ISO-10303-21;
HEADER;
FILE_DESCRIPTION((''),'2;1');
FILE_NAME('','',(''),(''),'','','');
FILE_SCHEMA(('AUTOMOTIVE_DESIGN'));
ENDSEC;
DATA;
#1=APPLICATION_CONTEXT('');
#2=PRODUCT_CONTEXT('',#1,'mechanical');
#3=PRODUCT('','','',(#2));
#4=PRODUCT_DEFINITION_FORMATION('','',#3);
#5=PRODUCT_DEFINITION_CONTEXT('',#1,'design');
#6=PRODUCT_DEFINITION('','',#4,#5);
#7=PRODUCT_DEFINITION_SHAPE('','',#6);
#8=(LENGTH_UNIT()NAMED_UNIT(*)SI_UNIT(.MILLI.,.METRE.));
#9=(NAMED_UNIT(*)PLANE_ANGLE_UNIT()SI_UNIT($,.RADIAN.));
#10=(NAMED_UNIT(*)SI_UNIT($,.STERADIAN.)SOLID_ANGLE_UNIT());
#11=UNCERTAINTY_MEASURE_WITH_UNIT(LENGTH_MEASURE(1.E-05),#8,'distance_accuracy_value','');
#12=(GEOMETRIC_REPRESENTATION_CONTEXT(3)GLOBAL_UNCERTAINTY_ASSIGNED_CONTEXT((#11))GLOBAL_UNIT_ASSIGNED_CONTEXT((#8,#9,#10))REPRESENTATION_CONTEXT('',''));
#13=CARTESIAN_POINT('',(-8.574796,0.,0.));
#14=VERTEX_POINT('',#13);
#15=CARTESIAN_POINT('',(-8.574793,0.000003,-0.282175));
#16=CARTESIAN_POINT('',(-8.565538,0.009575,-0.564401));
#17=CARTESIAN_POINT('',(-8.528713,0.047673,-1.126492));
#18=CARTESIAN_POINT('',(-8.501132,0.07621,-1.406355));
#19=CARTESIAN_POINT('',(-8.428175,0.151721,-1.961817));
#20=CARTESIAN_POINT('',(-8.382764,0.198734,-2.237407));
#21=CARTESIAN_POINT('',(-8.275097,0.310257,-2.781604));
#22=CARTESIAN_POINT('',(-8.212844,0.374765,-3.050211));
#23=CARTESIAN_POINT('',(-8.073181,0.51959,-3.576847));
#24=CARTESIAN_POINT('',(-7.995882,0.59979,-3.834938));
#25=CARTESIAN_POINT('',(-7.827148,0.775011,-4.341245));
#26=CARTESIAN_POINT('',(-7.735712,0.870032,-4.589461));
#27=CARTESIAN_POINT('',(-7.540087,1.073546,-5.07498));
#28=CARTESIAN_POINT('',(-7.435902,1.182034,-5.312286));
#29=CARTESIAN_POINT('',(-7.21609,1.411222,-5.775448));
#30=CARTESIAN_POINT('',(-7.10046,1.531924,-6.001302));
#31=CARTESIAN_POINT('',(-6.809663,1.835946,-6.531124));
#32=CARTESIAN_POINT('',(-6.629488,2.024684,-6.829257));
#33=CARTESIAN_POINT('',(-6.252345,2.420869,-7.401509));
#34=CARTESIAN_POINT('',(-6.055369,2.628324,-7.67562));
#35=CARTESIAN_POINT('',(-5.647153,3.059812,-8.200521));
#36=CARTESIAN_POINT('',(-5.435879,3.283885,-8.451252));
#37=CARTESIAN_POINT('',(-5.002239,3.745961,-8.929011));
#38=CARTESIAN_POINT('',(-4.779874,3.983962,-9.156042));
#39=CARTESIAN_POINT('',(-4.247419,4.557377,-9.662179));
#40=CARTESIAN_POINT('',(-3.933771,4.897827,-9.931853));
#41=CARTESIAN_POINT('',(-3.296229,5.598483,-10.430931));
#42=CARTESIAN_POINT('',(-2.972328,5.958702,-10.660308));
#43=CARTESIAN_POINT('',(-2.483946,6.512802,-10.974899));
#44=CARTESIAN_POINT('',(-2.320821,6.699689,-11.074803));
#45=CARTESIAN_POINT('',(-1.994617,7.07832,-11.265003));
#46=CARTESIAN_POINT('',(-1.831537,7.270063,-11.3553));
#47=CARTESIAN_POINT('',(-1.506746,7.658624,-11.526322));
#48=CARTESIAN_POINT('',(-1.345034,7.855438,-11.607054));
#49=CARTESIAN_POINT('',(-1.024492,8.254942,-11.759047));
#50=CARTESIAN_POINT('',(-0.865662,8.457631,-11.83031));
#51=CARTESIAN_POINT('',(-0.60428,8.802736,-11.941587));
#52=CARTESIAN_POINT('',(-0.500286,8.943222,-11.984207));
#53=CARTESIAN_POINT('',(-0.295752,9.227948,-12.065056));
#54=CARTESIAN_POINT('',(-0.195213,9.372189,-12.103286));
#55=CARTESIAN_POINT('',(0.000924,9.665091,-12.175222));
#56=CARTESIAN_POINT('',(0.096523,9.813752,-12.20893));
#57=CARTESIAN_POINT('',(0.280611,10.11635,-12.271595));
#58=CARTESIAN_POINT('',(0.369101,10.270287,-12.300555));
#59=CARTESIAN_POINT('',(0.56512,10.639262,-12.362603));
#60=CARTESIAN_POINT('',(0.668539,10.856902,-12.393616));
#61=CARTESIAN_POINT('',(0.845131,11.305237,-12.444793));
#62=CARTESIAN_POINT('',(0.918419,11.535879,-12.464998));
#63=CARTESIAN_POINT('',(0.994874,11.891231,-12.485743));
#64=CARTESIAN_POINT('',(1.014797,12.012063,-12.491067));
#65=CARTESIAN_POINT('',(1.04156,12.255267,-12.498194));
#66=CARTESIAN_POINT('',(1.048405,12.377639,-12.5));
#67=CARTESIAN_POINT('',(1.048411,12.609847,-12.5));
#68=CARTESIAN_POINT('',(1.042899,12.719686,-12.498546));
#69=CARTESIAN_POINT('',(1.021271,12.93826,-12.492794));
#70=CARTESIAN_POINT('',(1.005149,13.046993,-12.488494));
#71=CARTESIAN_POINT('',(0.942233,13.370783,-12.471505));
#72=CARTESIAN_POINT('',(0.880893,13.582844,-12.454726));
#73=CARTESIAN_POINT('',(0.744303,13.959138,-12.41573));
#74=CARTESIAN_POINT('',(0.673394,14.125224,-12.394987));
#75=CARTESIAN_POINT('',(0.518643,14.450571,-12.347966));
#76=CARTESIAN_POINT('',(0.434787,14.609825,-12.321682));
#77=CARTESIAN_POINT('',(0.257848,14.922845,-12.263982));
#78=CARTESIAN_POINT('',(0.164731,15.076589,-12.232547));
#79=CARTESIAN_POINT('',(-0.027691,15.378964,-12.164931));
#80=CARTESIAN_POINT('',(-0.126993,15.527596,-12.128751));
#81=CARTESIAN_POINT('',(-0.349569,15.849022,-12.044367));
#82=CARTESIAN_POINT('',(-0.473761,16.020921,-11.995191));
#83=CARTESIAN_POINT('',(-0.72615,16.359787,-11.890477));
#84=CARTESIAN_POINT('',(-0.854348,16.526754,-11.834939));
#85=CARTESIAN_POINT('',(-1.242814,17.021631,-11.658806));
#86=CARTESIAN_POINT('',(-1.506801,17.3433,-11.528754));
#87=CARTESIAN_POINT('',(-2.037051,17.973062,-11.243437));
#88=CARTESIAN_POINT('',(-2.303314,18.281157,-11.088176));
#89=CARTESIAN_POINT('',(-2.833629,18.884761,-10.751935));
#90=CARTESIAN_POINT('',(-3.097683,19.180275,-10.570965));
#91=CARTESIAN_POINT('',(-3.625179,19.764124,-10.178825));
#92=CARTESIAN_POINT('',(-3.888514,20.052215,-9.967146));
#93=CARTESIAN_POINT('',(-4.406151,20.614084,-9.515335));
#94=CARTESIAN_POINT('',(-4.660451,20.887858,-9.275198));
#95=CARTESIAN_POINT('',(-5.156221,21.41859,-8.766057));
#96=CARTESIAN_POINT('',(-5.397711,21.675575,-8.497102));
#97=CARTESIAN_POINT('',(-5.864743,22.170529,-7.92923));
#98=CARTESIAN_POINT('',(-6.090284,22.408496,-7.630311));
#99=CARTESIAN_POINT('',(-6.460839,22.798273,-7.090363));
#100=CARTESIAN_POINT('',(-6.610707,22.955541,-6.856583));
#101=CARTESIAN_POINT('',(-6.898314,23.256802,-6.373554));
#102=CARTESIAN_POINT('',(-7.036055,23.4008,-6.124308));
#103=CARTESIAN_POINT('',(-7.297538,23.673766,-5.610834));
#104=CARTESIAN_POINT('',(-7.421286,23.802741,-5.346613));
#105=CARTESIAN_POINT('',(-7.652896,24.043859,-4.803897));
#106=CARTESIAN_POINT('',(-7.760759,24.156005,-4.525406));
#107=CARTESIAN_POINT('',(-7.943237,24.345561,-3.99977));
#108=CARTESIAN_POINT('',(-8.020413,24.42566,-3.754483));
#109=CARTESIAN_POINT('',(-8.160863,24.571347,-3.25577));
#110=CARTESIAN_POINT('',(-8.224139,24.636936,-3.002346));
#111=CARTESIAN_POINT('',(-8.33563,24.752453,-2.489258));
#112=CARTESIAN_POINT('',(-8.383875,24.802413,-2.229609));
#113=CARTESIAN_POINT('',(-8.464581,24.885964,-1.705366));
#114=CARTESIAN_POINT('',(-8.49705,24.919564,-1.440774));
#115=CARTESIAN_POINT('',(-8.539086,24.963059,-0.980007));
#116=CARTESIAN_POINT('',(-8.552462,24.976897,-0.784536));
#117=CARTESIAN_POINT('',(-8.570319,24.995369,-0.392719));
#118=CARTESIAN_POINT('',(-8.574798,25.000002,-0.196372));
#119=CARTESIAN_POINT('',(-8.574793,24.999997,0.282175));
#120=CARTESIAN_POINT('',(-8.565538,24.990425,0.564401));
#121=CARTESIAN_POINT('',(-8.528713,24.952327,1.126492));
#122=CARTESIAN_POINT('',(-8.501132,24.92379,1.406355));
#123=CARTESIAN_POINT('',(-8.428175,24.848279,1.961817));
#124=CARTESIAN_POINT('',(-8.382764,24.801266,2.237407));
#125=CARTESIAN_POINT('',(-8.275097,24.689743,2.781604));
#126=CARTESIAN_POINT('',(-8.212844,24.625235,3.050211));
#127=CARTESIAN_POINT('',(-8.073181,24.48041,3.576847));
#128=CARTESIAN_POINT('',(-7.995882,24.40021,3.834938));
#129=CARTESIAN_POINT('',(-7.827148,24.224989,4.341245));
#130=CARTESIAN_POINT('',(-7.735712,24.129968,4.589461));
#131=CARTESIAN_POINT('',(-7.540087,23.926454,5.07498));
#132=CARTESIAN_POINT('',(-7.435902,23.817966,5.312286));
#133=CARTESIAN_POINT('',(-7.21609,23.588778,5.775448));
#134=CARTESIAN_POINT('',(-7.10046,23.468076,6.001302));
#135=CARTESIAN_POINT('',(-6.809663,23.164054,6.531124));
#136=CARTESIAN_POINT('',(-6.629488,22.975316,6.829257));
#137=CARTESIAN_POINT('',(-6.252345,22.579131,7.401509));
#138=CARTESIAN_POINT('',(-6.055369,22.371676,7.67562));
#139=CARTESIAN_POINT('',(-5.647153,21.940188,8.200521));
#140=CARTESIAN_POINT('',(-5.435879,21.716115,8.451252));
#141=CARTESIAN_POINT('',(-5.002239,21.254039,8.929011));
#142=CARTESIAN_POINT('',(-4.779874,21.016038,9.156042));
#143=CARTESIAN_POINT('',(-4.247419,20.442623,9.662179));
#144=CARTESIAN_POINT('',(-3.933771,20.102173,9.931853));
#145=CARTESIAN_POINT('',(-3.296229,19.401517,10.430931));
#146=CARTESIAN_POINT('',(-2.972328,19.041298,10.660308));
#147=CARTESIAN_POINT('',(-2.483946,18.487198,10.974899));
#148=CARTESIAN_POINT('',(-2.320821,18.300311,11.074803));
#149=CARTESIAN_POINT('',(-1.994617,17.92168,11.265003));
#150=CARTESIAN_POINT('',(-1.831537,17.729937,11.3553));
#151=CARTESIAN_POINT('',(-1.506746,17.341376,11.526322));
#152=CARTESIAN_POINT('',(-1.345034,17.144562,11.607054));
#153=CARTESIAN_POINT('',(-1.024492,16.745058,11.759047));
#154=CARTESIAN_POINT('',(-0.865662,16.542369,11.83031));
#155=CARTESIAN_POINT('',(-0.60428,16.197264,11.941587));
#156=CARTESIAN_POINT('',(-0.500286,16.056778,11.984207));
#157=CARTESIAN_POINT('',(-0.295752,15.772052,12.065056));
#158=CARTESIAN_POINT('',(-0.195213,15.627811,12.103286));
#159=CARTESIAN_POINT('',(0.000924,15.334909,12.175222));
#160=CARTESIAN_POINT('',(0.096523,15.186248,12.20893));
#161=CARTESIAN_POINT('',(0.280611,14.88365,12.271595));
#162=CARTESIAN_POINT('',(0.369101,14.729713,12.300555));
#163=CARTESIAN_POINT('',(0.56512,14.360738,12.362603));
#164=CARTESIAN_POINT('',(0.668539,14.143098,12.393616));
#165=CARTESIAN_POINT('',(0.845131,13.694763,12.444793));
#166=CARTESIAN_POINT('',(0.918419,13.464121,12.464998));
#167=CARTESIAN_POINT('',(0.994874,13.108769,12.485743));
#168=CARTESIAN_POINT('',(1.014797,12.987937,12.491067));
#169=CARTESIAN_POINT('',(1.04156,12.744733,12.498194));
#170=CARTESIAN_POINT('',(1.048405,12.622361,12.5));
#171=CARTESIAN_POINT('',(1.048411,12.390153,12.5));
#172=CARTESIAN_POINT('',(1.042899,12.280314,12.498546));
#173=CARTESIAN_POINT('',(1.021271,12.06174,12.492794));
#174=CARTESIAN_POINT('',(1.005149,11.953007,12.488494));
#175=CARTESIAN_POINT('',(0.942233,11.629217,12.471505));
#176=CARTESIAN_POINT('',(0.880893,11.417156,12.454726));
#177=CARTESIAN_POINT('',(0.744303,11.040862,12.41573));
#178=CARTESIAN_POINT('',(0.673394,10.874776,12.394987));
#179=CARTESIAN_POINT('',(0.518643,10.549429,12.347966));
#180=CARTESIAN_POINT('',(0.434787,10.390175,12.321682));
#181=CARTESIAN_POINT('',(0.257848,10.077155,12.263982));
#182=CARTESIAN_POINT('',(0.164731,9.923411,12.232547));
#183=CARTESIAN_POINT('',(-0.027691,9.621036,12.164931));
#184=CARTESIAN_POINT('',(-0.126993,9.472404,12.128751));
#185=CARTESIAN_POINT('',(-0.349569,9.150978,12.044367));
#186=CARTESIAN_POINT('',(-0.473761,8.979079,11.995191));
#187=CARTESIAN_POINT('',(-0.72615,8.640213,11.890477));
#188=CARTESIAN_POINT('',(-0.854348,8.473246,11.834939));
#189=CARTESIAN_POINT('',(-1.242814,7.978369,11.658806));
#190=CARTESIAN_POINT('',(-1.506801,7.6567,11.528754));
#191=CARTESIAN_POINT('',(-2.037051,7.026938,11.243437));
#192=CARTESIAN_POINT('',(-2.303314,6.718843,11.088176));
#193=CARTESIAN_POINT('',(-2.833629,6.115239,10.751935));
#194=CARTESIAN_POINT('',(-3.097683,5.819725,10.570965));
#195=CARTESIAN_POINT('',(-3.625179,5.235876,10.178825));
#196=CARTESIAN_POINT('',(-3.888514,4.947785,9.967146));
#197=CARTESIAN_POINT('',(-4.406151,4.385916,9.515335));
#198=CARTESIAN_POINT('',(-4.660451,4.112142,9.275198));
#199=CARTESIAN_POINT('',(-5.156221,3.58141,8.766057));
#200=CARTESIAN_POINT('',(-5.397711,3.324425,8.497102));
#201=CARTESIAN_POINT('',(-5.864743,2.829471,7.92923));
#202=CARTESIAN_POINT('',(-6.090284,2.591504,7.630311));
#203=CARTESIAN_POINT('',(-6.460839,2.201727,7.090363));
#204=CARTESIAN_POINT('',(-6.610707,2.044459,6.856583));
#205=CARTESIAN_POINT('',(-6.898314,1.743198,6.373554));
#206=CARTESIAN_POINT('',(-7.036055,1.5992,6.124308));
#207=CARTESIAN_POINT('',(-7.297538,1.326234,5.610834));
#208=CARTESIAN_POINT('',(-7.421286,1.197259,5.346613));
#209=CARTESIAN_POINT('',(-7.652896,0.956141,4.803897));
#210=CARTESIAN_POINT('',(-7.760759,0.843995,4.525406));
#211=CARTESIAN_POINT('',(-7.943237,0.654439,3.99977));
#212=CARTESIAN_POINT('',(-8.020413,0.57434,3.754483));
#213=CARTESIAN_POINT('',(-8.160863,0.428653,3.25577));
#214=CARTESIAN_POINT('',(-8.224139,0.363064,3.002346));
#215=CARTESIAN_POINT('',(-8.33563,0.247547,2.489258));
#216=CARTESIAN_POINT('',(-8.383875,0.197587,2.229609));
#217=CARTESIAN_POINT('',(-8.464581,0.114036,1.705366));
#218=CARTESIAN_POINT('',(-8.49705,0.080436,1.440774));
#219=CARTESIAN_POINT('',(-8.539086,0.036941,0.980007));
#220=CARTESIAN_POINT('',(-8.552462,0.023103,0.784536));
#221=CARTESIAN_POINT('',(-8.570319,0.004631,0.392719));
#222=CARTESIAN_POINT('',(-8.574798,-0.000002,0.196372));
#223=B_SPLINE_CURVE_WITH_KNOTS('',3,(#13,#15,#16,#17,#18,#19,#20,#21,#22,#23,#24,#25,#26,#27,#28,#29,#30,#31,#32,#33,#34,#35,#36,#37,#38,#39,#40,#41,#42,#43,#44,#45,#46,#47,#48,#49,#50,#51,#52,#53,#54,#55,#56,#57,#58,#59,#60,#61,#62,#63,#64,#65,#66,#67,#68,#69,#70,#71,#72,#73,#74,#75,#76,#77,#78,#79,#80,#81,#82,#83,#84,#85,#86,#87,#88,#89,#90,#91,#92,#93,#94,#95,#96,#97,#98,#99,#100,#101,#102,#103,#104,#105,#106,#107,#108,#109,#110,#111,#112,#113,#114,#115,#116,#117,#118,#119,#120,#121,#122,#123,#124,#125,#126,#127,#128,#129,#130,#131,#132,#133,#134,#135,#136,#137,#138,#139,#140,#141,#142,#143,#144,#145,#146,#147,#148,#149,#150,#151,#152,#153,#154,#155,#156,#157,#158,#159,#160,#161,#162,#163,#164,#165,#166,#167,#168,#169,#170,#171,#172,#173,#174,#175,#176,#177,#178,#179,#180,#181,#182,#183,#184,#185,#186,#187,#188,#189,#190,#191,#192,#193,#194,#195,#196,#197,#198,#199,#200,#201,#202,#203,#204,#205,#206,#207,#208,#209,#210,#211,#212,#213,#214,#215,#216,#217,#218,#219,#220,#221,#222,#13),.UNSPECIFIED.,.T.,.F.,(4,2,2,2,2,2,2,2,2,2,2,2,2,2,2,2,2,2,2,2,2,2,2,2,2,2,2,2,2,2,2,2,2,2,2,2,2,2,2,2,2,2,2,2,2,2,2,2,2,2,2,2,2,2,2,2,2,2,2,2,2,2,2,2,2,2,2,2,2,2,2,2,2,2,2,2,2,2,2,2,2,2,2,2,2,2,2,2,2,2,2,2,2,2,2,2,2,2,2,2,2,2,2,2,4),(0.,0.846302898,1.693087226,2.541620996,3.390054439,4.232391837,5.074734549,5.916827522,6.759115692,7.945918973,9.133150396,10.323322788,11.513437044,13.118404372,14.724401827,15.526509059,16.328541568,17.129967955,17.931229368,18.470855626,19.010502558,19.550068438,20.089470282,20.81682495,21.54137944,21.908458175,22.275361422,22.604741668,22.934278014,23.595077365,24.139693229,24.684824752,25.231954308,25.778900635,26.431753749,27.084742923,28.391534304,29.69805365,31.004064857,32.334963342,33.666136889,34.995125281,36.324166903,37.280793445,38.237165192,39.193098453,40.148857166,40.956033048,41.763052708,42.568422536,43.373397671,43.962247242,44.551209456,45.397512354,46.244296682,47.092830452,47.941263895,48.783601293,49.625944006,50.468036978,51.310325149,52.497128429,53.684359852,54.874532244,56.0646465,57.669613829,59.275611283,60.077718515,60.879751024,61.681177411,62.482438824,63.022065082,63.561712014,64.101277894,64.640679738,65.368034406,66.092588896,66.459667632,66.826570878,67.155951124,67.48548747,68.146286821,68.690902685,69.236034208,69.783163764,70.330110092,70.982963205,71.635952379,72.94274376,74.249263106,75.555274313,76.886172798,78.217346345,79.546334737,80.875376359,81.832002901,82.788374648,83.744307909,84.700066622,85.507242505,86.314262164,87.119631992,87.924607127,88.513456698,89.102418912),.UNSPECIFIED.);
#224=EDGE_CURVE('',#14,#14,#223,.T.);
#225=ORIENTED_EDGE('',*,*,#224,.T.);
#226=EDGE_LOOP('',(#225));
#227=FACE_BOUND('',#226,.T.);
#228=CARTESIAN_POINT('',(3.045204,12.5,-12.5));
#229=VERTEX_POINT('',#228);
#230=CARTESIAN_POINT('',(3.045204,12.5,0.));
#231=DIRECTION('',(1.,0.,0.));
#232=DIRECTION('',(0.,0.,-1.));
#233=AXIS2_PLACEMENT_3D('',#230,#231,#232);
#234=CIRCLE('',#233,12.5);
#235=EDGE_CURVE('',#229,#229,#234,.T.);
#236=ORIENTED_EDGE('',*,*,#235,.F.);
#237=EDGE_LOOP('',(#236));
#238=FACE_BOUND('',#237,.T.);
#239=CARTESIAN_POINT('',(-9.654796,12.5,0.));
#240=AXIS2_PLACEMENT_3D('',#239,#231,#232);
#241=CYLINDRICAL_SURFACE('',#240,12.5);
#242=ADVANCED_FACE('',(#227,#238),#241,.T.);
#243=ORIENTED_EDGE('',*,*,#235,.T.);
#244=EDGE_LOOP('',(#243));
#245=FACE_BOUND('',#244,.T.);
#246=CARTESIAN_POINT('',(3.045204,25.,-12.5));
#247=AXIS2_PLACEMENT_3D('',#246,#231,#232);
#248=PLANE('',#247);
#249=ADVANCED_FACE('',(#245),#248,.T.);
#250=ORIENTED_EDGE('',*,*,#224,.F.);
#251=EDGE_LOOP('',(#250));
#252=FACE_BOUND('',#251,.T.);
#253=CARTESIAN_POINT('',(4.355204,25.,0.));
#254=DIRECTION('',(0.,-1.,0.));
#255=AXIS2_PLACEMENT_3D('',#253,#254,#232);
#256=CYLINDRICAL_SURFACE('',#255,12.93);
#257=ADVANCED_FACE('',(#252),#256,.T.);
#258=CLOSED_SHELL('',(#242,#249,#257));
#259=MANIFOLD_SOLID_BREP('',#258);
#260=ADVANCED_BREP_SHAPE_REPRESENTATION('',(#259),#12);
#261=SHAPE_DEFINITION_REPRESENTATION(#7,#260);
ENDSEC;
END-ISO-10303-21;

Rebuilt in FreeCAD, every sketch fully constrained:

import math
import FreeCAD as App
import Part
import Sketcher
from FreeCAD import Vector

doc = App.newDocument("Part")
body = doc.addObject("PartDesign::Body", "Body")

# Sketch on XZ plane
sketch1 = doc.addObject("Sketcher::SketchObject", "Sketch")
body.addObject(sketch1)
sketch1.AttachmentSupport = (doc.XZ_Plane, [""])
sketch1.MapMode = "FlatFace"
sketch1.addGeometry(Part.LineSegment(Vector(3, -12.5, 0), Vector(1, -12.5, 0)), False)
sketch1.addGeometry(Part.ArcOfCircle(Part.Circle(Vector(4.4, 0, 0), Vector(0, 0, 1), 12.9), math.radians(105), math.radians(255)), False)
sketch1.addGeometry(Part.LineSegment(Vector(1, 12.5, 0), Vector(3, 12.5, 0)), False)
sketch1.addGeometry(Part.LineSegment(Vector(3, 12.5, 0), Vector(3, -12.5, 0)), False)
sketch1.addConstraint(Sketcher.Constraint("Coincident", 0, 2, 1, 2))
sketch1.addConstraint(Sketcher.Constraint("Coincident", 1, 1, 2, 1))
sketch1.addConstraint(Sketcher.Constraint("Coincident", 2, 2, 3, 1))
sketch1.addConstraint(Sketcher.Constraint("Coincident", 3, 2, 0, 1))
sketch1.addConstraint(Sketcher.Constraint("Horizontal", 0))
sketch1.addConstraint(Sketcher.Constraint("Horizontal", 2))
sketch1.addConstraint(Sketcher.Constraint("Vertical", 3))
sketch1.addConstraint(Sketcher.Constraint("Symmetric", 0, 2, 1, 1, -1))
sketch1.addConstraint(Sketcher.Constraint("DistanceY", 3, 2, 3, 1, 25.0))
sketch1.addConstraint(Sketcher.Constraint("Radius", 1, 12.93))
sketch1.addConstraint(Sketcher.Constraint("DistanceX", 2, 2, 1, 3, 1.31))
sketch1.addConstraint(Sketcher.Constraint("DistanceX", -1, 1, 0, 2, 1.048408))
pad1 = doc.addObject("PartDesign::Pad", "Pad")
body.addObject(pad1)
pad1.Profile = sketch1
pad1.Length = 25
pad1.Reversed = True

# Sketch on YZ plane
sketch2 = doc.addObject("Sketcher::SketchObject", "Sketch001")
body.addObject(sketch2)
sketch2.AttachmentSupport = (doc.YZ_Plane, [""])
sketch2.MapMode = "FlatFace"
sketch2.AttachmentOffset = App.Placement(Vector(0, 0, 3.045204), App.Rotation())
sketch2.addGeometry(Part.LineSegment(Vector(25, 12, 0), Vector(12, 12, 0)), False)
sketch2.addGeometry(Part.ArcOfCircle(Part.Circle(Vector(13, 0, 0), Vector(0, 0, 1), 12), math.radians(0), math.radians(90)), False)
sketch2.addGeometry(Part.LineSegment(Vector(25, 0, 0), Vector(25, 12, 0)), False)
sketch2.addGeometry(Part.ArcOfCircle(Part.Circle(Vector(13, 0, 0), Vector(0, 0, 1), 12), math.radians(-90), math.radians(0)), False)
sketch2.addGeometry(Part.LineSegment(Vector(12, -12, 0), Vector(25, -12, 0)), False)
sketch2.addGeometry(Part.LineSegment(Vector(25, -12, 0), Vector(25, 0, 0)), False)
sketch2.addGeometry(Part.ArcOfCircle(Part.Circle(Vector(12, 0, 0), Vector(0, 0, 1), 12), math.radians(180), math.radians(270)), False)
sketch2.addGeometry(Part.LineSegment(Vector(0, 0, 0), Vector(0, -12, 0)), False)
sketch2.addGeometry(Part.LineSegment(Vector(0, -12, 0), Vector(12, -12, 0)), False)
sketch2.addGeometry(Part.LineSegment(Vector(12, 12, 0), Vector(0, 12, 0)), False)
sketch2.addGeometry(Part.LineSegment(Vector(0, 12, 0), Vector(0, 0, 0)), False)
sketch2.addGeometry(Part.ArcOfCircle(Part.Circle(Vector(12, 0, 0), Vector(0, 0, 1), 12), math.radians(90), math.radians(180)), False)
sketch2.addConstraint(Sketcher.Constraint("Tangent", 0, 2, 1, 2))
sketch2.addConstraint(Sketcher.Constraint("Tangent", 1, 1, 2, 1))
sketch2.addConstraint(Sketcher.Constraint("Coincident", 2, 2, 0, 1))
sketch2.addConstraint(Sketcher.Constraint("Tangent", 3, 1, 4, 1))
sketch2.addConstraint(Sketcher.Constraint("Coincident", 4, 2, 5, 1))
sketch2.addConstraint(Sketcher.Constraint("Tangent", 5, 2, 3, 2))
sketch2.addConstraint(Sketcher.Constraint("Tangent", 6, 1, 7, 1))
sketch2.addConstraint(Sketcher.Constraint("Coincident", 7, 2, 8, 1))
sketch2.addConstraint(Sketcher.Constraint("Tangent", 8, 2, 6, 2))
sketch2.addConstraint(Sketcher.Constraint("Coincident", 9, 2, 10, 1))
sketch2.addConstraint(Sketcher.Constraint("Tangent", 10, 2, 11, 2))
sketch2.addConstraint(Sketcher.Constraint("Tangent", 11, 1, 9, 1))
sketch2.addConstraint(Sketcher.Constraint("Horizontal", 0))
sketch2.addConstraint(Sketcher.Constraint("Vertical", 2))
sketch2.addConstraint(Sketcher.Constraint("Horizontal", 4))
sketch2.addConstraint(Sketcher.Constraint("Vertical", 5))
sketch2.addConstraint(Sketcher.Constraint("Vertical", 7))
sketch2.addConstraint(Sketcher.Constraint("Horizontal", 8))
sketch2.addConstraint(Sketcher.Constraint("Horizontal", 9))
sketch2.addConstraint(Sketcher.Constraint("Vertical", 10))
sketch2.addConstraint(Sketcher.Constraint("Coincident", 6, 1, -1, 1))
sketch2.addConstraint(Sketcher.Constraint("Coincident", 10, 2, -1, 1))
sketch2.addConstraint(Sketcher.Constraint("Coincident", 3, 3, 1, 3))
sketch2.addConstraint(Sketcher.Constraint("Coincident", 6, 3, 1, 3))
sketch2.addConstraint(Sketcher.Constraint("Coincident", 11, 1, 0, 2))
sketch2.addConstraint(Sketcher.Constraint("Equal", 1, 3))
sketch2.addConstraint(Sketcher.Constraint("Radius", 1, 12.5))
pocket1 = doc.addObject("PartDesign::Pocket", "Pocket")
body.addObject(pocket1)
pocket1.Profile = sketch2
pocket1.Length = 12.7

doc.recompute()
